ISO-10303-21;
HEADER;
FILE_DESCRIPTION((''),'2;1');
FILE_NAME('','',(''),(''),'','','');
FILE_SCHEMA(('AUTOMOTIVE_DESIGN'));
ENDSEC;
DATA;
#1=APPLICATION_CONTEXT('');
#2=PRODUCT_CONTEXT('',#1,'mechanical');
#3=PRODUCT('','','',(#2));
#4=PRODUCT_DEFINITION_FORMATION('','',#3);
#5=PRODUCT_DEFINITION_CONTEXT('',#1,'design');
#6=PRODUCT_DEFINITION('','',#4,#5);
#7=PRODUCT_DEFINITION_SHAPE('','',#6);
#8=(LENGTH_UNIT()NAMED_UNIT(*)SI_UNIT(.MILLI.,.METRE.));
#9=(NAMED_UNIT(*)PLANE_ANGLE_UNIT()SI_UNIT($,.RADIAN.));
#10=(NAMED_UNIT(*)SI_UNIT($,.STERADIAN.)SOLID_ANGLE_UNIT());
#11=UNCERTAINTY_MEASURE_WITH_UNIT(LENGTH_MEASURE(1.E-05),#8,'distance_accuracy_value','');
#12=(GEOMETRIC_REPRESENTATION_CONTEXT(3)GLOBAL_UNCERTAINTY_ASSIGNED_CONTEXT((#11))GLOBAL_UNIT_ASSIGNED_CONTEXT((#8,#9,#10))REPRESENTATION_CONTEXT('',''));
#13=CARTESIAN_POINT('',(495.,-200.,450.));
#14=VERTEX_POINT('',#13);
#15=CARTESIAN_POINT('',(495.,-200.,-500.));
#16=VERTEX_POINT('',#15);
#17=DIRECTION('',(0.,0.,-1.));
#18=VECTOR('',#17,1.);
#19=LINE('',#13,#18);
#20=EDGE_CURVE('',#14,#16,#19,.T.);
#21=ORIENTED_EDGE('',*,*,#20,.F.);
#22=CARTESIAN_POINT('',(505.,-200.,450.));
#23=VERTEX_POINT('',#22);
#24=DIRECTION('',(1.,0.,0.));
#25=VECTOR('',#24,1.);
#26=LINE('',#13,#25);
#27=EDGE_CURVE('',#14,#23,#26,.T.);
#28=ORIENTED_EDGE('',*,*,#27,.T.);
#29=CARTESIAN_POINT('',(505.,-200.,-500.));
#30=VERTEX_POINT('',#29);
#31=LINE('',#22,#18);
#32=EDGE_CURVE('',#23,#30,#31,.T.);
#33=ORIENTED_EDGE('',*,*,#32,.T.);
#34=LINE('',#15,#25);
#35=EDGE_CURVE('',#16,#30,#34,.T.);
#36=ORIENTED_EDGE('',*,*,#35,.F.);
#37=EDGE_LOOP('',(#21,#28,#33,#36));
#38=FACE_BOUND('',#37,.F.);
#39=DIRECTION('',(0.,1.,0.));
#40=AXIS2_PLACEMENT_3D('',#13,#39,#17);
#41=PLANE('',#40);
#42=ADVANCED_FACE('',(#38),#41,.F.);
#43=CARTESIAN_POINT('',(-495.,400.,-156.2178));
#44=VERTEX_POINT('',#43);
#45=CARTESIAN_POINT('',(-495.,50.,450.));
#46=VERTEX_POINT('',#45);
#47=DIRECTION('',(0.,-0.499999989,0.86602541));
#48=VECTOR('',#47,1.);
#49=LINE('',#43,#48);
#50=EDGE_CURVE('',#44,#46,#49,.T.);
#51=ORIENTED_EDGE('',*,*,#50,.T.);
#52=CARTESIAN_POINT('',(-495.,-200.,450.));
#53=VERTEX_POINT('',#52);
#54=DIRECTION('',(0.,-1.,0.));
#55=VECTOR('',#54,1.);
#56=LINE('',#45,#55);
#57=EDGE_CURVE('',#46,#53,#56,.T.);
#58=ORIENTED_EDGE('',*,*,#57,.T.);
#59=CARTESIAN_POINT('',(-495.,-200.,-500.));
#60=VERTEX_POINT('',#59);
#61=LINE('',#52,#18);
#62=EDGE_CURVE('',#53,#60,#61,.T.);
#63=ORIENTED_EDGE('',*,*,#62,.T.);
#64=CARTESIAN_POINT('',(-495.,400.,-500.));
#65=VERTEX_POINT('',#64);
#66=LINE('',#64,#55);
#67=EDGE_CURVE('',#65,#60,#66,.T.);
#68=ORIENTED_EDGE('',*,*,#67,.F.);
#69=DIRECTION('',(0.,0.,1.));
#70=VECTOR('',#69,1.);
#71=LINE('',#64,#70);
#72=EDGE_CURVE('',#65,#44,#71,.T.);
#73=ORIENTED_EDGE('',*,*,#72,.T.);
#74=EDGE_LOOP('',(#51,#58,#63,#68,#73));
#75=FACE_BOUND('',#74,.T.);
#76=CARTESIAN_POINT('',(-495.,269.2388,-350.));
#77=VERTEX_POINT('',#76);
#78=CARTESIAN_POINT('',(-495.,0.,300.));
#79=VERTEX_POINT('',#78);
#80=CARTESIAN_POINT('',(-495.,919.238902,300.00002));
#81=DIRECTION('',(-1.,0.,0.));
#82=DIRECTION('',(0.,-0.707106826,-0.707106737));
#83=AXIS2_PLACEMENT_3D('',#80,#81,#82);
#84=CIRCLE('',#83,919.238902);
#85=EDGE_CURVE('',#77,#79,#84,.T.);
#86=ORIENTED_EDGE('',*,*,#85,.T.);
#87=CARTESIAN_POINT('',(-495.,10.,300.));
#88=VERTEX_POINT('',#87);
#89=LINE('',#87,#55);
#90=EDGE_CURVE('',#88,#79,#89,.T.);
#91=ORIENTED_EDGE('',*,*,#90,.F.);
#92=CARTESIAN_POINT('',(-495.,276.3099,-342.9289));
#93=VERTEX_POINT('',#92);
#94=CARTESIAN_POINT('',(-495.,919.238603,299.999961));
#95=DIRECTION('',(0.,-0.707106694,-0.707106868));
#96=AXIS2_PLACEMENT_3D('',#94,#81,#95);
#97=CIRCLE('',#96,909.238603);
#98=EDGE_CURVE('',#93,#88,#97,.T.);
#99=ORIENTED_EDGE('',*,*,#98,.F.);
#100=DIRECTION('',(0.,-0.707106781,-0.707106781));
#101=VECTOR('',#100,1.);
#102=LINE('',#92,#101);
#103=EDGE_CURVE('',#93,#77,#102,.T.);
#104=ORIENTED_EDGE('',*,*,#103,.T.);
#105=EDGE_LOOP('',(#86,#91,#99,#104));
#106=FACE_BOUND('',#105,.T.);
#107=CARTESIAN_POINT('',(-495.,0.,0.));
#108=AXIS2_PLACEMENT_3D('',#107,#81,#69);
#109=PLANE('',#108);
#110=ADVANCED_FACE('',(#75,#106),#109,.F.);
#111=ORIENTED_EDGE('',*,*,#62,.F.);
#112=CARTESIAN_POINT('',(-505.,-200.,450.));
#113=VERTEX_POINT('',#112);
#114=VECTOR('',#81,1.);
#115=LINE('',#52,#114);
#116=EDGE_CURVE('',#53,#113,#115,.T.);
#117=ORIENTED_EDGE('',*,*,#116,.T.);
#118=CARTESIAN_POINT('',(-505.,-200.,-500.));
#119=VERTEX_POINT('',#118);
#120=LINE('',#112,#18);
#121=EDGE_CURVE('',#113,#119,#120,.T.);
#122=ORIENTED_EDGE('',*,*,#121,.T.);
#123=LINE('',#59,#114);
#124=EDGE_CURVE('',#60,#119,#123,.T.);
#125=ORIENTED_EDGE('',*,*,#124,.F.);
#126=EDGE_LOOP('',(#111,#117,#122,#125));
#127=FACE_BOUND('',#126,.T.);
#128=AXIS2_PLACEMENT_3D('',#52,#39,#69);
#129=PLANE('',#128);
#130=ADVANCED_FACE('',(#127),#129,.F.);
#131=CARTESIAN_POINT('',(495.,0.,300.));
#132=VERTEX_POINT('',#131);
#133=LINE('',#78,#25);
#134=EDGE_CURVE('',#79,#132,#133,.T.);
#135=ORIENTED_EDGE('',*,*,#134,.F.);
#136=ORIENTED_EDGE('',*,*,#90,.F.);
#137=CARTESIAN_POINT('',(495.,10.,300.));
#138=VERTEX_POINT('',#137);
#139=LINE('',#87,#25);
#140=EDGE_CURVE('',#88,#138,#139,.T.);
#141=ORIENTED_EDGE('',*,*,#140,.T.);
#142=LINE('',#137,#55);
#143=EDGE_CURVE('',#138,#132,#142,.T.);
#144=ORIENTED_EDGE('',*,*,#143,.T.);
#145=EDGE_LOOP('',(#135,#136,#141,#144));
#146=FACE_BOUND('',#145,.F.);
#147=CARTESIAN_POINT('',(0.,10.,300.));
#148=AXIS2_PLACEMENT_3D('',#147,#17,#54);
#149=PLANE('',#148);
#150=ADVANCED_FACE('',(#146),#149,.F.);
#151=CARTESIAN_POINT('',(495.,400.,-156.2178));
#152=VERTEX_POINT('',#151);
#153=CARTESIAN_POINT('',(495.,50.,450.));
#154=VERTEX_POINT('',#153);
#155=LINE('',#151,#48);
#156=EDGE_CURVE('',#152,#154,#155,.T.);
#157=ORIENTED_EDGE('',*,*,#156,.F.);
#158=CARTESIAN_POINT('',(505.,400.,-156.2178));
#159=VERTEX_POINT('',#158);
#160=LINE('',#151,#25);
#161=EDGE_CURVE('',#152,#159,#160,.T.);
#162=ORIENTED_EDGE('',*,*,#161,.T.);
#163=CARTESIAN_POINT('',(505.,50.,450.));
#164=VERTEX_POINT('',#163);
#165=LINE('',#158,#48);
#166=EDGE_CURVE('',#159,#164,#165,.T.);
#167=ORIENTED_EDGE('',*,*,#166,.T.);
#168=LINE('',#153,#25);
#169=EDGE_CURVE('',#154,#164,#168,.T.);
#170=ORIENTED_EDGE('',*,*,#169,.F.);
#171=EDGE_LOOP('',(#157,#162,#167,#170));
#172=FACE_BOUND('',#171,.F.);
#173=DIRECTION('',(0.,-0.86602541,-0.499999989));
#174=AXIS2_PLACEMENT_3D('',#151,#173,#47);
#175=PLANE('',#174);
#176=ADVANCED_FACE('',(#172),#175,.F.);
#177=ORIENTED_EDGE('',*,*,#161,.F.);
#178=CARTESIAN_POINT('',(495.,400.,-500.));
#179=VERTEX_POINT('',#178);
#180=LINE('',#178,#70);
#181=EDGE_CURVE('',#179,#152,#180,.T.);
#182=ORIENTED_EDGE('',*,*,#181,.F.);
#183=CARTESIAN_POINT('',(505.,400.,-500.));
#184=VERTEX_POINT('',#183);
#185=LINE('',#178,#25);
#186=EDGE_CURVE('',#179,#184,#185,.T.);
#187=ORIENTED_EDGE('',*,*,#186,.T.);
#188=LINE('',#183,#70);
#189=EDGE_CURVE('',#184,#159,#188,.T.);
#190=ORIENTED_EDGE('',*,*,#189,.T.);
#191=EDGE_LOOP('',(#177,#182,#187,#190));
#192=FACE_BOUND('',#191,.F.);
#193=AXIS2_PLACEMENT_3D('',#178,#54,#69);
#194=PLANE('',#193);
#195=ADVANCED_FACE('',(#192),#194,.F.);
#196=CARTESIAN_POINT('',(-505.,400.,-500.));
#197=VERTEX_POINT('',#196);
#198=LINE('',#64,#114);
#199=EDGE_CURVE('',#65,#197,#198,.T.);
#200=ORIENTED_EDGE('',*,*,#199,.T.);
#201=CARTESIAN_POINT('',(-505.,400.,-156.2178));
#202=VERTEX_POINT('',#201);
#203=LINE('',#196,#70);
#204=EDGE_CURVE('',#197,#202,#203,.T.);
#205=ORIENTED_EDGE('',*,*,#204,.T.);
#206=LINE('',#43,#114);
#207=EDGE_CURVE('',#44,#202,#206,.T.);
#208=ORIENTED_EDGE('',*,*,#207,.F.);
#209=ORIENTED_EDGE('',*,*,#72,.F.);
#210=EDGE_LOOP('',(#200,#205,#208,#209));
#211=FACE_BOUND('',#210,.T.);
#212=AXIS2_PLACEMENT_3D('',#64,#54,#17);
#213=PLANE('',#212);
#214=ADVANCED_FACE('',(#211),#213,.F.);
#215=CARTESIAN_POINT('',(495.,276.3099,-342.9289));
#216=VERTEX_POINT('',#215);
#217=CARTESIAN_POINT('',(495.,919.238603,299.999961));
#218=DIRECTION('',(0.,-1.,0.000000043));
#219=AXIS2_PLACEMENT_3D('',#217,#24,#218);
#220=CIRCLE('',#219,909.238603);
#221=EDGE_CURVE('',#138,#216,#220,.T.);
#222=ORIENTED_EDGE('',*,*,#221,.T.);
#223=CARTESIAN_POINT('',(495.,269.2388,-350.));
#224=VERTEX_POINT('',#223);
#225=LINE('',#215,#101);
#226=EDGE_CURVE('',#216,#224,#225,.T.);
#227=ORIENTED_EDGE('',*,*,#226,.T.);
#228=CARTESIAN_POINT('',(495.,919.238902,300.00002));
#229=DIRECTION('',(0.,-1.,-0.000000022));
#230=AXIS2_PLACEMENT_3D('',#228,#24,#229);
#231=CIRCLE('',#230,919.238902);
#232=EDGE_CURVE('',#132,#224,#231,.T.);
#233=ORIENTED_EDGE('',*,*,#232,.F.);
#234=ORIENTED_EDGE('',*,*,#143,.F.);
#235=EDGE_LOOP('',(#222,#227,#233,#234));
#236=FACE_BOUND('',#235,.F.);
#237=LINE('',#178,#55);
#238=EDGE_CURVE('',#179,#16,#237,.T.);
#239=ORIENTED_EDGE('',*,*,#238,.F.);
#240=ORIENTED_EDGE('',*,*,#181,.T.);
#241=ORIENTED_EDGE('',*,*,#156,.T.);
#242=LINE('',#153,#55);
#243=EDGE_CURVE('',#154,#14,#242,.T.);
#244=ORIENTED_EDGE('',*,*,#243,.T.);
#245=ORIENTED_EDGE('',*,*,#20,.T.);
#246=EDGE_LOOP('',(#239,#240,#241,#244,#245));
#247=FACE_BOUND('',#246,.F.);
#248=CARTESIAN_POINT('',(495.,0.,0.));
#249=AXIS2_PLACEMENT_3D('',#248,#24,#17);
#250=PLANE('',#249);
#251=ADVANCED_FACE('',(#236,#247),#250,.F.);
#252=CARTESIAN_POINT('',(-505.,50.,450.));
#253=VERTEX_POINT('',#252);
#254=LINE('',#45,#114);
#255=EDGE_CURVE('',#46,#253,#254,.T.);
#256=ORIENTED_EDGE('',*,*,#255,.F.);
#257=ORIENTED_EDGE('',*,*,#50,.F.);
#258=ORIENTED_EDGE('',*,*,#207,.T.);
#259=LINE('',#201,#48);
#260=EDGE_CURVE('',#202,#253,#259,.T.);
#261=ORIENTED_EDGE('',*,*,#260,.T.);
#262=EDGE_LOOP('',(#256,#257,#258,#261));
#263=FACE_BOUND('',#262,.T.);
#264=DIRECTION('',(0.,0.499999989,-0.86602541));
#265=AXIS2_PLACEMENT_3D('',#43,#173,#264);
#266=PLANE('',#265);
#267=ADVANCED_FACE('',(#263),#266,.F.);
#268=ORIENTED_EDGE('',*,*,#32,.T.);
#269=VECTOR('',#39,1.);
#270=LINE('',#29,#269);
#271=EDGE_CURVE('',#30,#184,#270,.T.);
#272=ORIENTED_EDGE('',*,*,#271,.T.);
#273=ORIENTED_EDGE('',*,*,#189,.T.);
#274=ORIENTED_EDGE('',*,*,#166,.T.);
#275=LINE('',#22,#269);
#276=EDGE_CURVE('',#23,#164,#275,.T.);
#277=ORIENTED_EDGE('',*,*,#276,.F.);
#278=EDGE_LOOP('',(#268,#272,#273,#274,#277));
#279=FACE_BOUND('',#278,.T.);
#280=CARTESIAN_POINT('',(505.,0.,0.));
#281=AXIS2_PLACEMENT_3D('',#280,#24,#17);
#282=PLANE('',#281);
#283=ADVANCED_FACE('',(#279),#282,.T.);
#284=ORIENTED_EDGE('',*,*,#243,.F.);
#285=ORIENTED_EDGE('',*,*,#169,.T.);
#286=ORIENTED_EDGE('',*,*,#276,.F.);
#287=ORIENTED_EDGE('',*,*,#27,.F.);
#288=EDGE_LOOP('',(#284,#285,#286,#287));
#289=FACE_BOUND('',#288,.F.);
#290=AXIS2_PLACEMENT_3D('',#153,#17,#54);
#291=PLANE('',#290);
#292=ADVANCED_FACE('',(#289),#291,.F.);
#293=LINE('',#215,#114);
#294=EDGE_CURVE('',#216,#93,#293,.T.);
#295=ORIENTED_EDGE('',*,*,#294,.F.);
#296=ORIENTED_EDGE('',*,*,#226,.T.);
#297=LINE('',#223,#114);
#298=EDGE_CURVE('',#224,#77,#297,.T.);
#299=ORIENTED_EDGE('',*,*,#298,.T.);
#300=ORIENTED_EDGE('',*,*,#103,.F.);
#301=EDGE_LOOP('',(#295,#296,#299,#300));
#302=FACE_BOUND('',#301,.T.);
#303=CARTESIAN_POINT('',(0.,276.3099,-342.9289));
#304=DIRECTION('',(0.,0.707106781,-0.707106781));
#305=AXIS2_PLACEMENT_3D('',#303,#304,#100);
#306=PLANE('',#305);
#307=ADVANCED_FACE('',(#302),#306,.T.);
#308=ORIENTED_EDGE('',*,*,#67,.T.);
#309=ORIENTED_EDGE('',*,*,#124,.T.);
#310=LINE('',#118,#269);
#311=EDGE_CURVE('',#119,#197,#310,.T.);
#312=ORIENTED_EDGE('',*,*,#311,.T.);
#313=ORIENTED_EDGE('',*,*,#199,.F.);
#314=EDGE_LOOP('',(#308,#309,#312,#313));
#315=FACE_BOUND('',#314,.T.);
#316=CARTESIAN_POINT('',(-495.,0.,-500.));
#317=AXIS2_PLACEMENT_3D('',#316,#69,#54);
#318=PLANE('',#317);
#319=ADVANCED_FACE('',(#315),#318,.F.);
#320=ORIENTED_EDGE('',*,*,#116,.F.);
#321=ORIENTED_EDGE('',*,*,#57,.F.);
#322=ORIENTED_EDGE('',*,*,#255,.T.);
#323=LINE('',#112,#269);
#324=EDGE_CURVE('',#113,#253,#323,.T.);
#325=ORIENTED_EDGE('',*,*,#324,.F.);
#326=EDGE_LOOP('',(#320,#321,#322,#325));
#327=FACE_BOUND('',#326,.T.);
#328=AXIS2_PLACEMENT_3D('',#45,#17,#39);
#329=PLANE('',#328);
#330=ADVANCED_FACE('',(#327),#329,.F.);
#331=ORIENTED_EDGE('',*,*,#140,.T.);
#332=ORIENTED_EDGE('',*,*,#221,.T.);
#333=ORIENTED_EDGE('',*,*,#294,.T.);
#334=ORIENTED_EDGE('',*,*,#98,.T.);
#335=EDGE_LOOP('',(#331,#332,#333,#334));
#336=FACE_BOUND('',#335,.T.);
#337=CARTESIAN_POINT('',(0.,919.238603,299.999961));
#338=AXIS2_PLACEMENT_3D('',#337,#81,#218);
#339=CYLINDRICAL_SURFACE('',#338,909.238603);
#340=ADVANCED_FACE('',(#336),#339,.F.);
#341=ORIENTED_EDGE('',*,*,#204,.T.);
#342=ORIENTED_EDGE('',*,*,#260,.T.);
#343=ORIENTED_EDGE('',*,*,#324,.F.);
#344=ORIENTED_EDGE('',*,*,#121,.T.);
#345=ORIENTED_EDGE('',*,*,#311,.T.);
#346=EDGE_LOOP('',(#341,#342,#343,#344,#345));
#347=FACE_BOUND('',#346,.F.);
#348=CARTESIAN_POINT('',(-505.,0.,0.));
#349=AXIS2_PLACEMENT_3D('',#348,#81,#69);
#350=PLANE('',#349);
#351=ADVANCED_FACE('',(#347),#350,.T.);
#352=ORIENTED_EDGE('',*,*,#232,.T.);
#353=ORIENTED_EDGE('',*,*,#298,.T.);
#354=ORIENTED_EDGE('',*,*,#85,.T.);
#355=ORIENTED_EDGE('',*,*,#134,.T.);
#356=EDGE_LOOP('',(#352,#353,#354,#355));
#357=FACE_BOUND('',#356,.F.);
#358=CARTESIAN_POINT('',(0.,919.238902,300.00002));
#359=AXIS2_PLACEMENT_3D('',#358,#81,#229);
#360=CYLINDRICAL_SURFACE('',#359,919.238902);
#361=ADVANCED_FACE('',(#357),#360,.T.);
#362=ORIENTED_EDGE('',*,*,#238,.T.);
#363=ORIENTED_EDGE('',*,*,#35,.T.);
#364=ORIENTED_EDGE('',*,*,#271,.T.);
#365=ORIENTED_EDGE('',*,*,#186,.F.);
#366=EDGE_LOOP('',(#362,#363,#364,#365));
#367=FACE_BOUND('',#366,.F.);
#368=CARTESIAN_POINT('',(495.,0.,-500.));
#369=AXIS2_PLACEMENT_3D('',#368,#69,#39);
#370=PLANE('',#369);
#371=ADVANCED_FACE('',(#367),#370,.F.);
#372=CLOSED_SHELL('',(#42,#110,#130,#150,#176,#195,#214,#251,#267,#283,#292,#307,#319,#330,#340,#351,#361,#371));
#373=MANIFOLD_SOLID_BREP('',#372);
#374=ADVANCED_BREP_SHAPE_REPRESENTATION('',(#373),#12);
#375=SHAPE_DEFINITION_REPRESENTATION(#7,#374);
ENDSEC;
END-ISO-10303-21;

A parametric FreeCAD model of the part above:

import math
import FreeCAD as App
import Part
import Sketcher
Q = App.Units.Quantity

doc = App.newDocument("Part")
body = doc.addObject("PartDesign::Body", "Body")

sketch1 = body.newObject("Sketcher::SketchObject", "Sketch")
sketch1.AttachmentSupport = (doc.getObject("YZ_Plane"), [""])
sketch1.MapMode = "FlatFace"
sketch1.addGeometry(Part.LineSegment(App.Vector(10, 300, 0), App.Vector(0, 300, 0)), False)
sketch1.addGeometry(Part.ArcOfCircle(Part.Circle(App.Vector(919.2388, 300, 0), App.Vector(0, 0, 1), 919.2388), math.radians(180), math.radians(225)), False)
sketch1.addGeometry(Part.LineSegment(App.Vector(269.2388, -350, 0), App.Vector(276.3099, -342.9289, 0)), False)
sketch1.addGeometry(Part.ArcOfCircle(Part.Circle(App.Vector(919.2388, 300, 0), App.Vector(0, 0, 1), 909.2388), math.radians(180), math.radians(225)), False)
sketch1.addConstraint(Sketcher.Constraint("Coincident", 0, 2, 1, 1))
sketch1.addConstraint(Sketcher.Constraint("Coincident", 1, 2, 2, 1))
sketch1.addConstraint(Sketcher.Constraint("Coincident", 2, 2, 3, 2))
sketch1.addConstraint(Sketcher.Constraint("Coincident", 3, 1, 0, 1))
sketch1.addConstraint(Sketcher.Constraint("Horizontal", 0))
sketch1.addConstraint(Sketcher.Constraint("Coincident", 3, 3, 1, 3))
sketch1.addConstraint(Sketcher.Constraint("PointOnObject", 0, 2, -2))
sketch1.addConstraint(Sketcher.Constraint("Horizontal", 3, 3, 0, 2))
sketch1.addConstraint(Sketcher.Constraint("DistanceX", 0, 2, 0, 1, Q("10 mm")))
sketch1.addConstraint(Sketcher.Constraint("Angle", 2, Q("45 deg")))
sketch1.addConstraint(Sketcher.Constraint("DistanceY", -1, 1, 1, 3, Q("300 mm")))
sketch1.addConstraint(Sketcher.Constraint("Radius", 1, Q("919.2388 mm")))
sketch1.addConstraint(Sketcher.Constraint("DistanceX", -1, 1, 2, 2, Q("276.31 mm")))
pad1 = body.newObject("PartDesign::Pad", "Pad")
pad1.Profile = sketch1
pad1.Length = 990
pad1.Midplane = True

sketch2 = body.newObject("Sketcher::SketchObject", "Sketch001")
sketch2.AttachmentSupport = (doc.getObject("YZ_Plane"), [""])
sketch2.MapMode = "FlatFace"
sketch2.AttachmentOffset = App.Placement(App.Vector(0, 0, 495), App.Rotation())
sketch2.addGeometry(Part.LineSegment(App.Vector(400, -156.2178, 0), App.Vector(50, 450, 0)), False)
sketch2.addGeometry(Part.LineSegment(App.Vector(50, 450, 0), App.Vector(-200, 450, 0)), False)
sketch2.addGeometry(Part.LineSegment(App.Vector(-200, 450, 0), App.Vector(-200, -500, 0)), False)
sketch2.addGeometry(Part.LineSegment(App.Vector(-200, -500, 0), App.Vector(400, -500, 0)), False)
sketch2.addGeometry(Part.LineSegment(App.Vector(400, -500, 0), App.Vector(400, -156.2178, 0)), False)
sketch2.addConstraint(Sketcher.Constraint("Coincident", 0, 2, 1, 1))
sketch2.addConstraint(Sketcher.Constraint("Coincident", 1, 2, 2, 1))
sketch2.addConstraint(Sketcher.Constraint("Coincident", 2, 2, 3, 1))
sketch2.addConstraint(Sketcher.Constraint("Coincident", 3, 2, 4, 1))
sketch2.addConstraint(Sketcher.Constraint("Coincident", 4, 2, 0, 1))
sketch2.addConstraint(Sketcher.Constraint("Horizontal", 1))
sketch2.addConstraint(Sketcher.Constraint("Vertical", 2))
sketch2.addConstraint(Sketcher.Constraint("Horizontal", 3))
sketch2.addConstraint(Sketcher.Constraint("Vertical", 4))
sketch2.addConstraint(Sketcher.Constraint("DistanceX", 1, 2, 1, 1, Q("250 mm")))
sketch2.addConstraint(Sketcher.Constraint("DistanceX", 3, 1, 3, 2, Q("600 mm")))
sketch2.addConstraint(Sketcher.Constraint("DistanceX", 1, 2, -1, 1, Q("200 mm")))
sketch2.addConstraint(Sketcher.Constraint("DistanceY", 2, 2, 2, 1, Q("950 mm")))
sketch2.addConstraint(Sketcher.Constraint("Angle", 0, Q("120 deg")))
sketch2.addConstraint(Sketcher.Constraint("DistanceY", -1, 1, 0, 2, Q("450 mm")))
pad2 = body.newObject("PartDesign::Pad", "Pad001")
pad2.Profile = sketch2
pad2.Length = 10
doc.recompute()

mirrored = body.newObject("PartDesign::Mirrored", "Mirrored")
mirrored.Originals = [pad2]
mirrored.MirrorPlane = (doc.getObject("YZ_Plane"), [""])
body.Tip = mirrored

doc.recompute()
